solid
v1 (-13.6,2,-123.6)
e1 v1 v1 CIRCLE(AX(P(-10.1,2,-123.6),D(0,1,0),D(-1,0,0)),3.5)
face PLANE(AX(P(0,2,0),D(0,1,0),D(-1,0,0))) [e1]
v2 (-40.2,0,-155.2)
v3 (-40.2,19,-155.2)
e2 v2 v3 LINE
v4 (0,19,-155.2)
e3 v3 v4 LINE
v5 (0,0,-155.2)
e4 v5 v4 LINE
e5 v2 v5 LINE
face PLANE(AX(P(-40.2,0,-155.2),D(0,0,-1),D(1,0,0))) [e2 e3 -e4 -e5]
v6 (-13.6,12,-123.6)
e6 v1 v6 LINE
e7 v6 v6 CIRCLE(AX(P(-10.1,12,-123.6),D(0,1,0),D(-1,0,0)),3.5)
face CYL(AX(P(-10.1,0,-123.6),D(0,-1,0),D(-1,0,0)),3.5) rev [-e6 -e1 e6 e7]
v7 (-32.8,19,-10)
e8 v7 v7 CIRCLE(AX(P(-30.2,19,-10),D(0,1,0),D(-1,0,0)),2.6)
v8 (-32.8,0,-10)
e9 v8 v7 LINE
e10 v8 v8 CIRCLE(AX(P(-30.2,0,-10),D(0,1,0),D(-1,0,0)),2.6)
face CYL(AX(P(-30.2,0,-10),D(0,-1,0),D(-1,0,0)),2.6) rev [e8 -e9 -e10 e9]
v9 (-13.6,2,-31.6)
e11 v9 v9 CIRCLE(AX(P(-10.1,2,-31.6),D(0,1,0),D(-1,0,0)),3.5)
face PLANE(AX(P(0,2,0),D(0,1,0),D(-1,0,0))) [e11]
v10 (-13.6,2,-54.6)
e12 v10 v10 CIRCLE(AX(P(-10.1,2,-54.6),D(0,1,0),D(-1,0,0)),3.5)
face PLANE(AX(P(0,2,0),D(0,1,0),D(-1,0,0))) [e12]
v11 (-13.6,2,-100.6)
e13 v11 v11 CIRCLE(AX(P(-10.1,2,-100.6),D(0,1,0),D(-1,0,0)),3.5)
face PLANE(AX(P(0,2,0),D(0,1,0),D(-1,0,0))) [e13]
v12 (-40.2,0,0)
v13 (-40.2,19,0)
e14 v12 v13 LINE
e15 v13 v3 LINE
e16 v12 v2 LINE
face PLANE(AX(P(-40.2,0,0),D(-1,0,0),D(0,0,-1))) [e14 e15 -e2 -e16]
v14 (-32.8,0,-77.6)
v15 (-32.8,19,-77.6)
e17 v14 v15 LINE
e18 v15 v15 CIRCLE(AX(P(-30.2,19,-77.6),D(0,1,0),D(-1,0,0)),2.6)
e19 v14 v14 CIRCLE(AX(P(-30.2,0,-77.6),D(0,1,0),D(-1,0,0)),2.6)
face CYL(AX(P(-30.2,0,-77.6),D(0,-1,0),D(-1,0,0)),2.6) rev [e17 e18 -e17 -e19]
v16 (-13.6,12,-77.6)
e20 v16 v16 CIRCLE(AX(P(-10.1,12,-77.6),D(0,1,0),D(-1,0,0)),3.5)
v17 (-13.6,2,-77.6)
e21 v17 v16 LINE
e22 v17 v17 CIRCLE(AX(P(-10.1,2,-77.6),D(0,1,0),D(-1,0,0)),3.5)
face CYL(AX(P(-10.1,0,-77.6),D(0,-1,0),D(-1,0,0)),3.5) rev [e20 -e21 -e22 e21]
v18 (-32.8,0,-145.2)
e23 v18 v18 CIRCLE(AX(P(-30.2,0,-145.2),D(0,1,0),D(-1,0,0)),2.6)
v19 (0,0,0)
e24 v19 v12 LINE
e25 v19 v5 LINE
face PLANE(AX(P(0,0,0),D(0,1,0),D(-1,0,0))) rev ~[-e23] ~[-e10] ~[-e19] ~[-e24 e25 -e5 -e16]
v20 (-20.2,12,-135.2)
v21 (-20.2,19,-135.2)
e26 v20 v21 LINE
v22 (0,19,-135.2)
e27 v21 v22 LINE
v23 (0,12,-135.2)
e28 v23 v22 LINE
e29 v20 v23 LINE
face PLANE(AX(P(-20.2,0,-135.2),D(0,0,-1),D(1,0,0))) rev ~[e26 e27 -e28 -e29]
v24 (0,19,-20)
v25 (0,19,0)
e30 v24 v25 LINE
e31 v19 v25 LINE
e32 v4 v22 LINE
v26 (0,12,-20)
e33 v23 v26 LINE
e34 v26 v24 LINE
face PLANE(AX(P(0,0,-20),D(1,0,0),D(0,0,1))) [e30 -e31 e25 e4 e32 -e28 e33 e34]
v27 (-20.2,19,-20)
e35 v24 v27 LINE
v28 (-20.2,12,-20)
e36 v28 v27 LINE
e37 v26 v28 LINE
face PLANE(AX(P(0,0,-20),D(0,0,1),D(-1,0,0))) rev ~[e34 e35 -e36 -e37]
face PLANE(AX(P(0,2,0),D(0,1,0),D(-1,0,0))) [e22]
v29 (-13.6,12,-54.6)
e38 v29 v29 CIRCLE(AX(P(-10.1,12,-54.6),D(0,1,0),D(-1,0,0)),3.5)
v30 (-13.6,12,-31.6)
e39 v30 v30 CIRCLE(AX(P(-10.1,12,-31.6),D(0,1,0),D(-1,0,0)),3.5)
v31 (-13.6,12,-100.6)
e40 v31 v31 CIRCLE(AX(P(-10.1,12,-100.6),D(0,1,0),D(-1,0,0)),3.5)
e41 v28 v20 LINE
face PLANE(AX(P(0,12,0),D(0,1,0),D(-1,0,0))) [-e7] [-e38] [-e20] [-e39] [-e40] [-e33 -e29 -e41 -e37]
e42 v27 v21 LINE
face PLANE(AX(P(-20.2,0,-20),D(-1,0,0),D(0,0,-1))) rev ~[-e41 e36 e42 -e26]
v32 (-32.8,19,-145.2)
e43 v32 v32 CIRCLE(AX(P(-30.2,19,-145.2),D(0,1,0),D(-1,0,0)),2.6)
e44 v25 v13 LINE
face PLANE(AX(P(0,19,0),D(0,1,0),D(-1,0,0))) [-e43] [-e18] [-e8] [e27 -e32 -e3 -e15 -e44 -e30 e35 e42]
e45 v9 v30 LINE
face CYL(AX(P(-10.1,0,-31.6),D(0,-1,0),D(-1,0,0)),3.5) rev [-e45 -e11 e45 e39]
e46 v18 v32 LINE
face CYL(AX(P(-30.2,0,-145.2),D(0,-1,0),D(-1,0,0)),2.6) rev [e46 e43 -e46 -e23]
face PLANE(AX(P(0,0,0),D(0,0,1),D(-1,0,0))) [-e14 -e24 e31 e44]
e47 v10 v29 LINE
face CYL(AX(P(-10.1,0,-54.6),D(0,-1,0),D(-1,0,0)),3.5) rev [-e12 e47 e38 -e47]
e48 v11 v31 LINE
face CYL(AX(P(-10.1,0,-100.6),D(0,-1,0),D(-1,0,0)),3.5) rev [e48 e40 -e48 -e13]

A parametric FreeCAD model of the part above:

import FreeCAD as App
import Part
import Sketcher

V = App.Vector


def add_polygon(sketch, points):
    """Adds a closed chain of lines whose ends are joined by coincident constraints."""
    first, n = sketch.GeometryCount, len(points)
    for a, b in zip(points, points[1:] + points[:1]):
        sketch.addGeometry(Part.LineSegment(App.Vector(*a, 0), App.Vector(*b, 0)), False)
    for i in range(n):
        sketch.addConstraint(Sketcher.Constraint("Coincident", first + i, 2, first + (i + 1) % n, 1))

doc = App.newDocument("Part")
body = doc.addObject("PartDesign::Body", "Body")

# Sketch on XZ plane
sketch1 = body.newObject("Sketcher::SketchObject", "Sketch")
sketch1.AttachmentSupport = (doc.getObject("XZ_Plane"), [""])
sketch1.MapMode = "FlatFace"
add_polygon(sketch1, [(-20.2, -20), (0, -20), (0, -135.2), (-20.2, -135.2)])  # lines 0-3
sketch1.addGeometry(Part.Circle(V(-10.1, -123.6, 0), V(0, 0, 1), 3.5), False)  # 4
sketch1.addGeometry(Part.Circle(V(-10.1, -100.6, 0), V(0, 0, 1), 3.5), False)  # 5
sketch1.addGeometry(Part.Circle(V(-10.1, -77.6, 0), V(0, 0, 1), 3.5), False)  # 6
sketch1.addGeometry(Part.Circle(V(-10.1, -54.6, 0), V(0, 0, 1), 3.5), False)  # 7
sketch1.addGeometry(Part.Circle(V(-10.1, -31.6, 0), V(0, 0, 1), 3.5), False)  # 8
sketch1.addConstraint([
    Sketcher.Constraint("Horizontal", 0),
    Sketcher.Constraint("Vertical", 1),
    Sketcher.Constraint("Horizontal", 2),
    Sketcher.Constraint("Vertical", 3),
    Sketcher.Constraint("Equal", 4, 5),
    Sketcher.Constraint("Equal", 5, 6),
    Sketcher.Constraint("Equal", 6, 7),
    Sketcher.Constraint("Equal", 7, 8),
    Sketcher.Constraint("PointOnObject", 0, 2, -2),
    Sketcher.Constraint("Vertical", 4, 3, 5, 3),
    Sketcher.Constraint("Vertical", 5, 3, 6, 3),
    Sketcher.Constraint("Vertical", 6, 3, 7, 3),
    Sketcher.Constraint("Vertical", 7, 3, 8, 3),
    Sketcher.Constraint("Diameter", 4, 7.0),
    Sketcher.Constraint("DistanceX", 0, 1, 0, 2, 20.2),
    Sketcher.Constraint("DistanceY", 1, 2, 1, 1, 115.2),
    Sketcher.Constraint("DistanceY", 0, 2, -1, 1, 20.0),
    Sketcher.Constraint("DistanceY", 4, 3, 5, 3, 23.0),
    Sketcher.Constraint("DistanceY", 5, 3, 6, 3, 23.0),
    Sketcher.Constraint("DistanceY", 6, 3, 7, 3, 23.0),
    Sketcher.Constraint("DistanceY", 7, 3, 8, 3, 23.0),
    Sketcher.Constraint("DistanceX", 4, 3, -1, 1, 10.1),
    Sketcher.Constraint("DistanceY", 4, 3, -1, 1, 123.6),
])
pad1 = body.newObject("PartDesign::Pad", "Pad")
pad1.Profile = sketch1
pad1.Length = 12
pad1.Reversed = True

# Sketch on XZ plane
sketch2 = body.newObject("Sketcher::SketchObject", "Sketch001")
sketch2.AttachmentSupport = (doc.getObject("XZ_Plane"), [""])
sketch2.MapMode = "FlatFace"
sketch2.addGeometry([
    Part.Circle(V(-10.1, -77.6, 0), V(0, 0, 1), 3.5),  # 0
    Part.Circle(V(-10.1, -54.6, 0), V(0, 0, 1), 3.5),  # 1
    Part.Circle(V(-10.1, -31.6, 0), V(0, 0, 1), 3.5),  # 2
    Part.Circle(V(-10.1, -100.6, 0), V(0, 0, 1), 3.5),  # 3
    Part.Circle(V(-10.1, -123.6, 0), V(0, 0, 1), 3.5),  # 4
], False)
sketch2.addConstraint([
    Sketcher.Constraint("Equal", 0, 1),
    Sketcher.Constraint("Equal", 1, 2),
    Sketcher.Constraint("Equal", 2, 3),
    Sketcher.Constraint("Equal", 3, 4),
    Sketcher.Constraint("Vertical", 0, 3, 1, 3),
    Sketcher.Constraint("Vertical", 1, 3, 2, 3),
    Sketcher.Constraint("Vertical", 2, 3, 3, 3),
    Sketcher.Constraint("Vertical", 3, 3, 4, 3),
    Sketcher.Constraint("Diameter", 0, 7.0),
    Sketcher.Constraint("DistanceY", 0, 3, 1, 3, 23.0),
    Sketcher.Constraint("DistanceY", 1, 3, 2, 3, 23.0),
    Sketcher.Constraint("DistanceY", 3, 3, 0, 3, 23.0),
    Sketcher.Constraint("DistanceY", 4, 3, 3, 3, 23.0),
    Sketcher.Constraint("DistanceX", 0, 3, -1, 1, 10.1),
    Sketcher.Constraint("DistanceY", 0, 3, -1, 1, 77.6),
])
pad2 = body.newObject("PartDesign::Pad", "Pad001")
pad2.Profile = sketch2
pad2.Length = 2
pad2.Reversed = True

# Sketch on XZ plane
sketch3 = body.newObject("Sketcher::SketchObject", "Sketch002")
sketch3.AttachmentSupport = (doc.getObject("XZ_Plane"), [""])
sketch3.MapMode = "FlatFace"
add_polygon(sketch3, [(-40.2, 0), (0, 0), (0, -20), (-20.2, -20), (-20.2, -135.2), (0, -135.2), (0, -155.2), (-40.2, -155.2)])  # lines 0-7
sketch3.addGeometry(Part.Circle(V(-30.2, -145.2, 0), V(0, 0, 1), 2.6), False)  # 8
sketch3.addGeometry(Part.Circle(V(-30.2, -77.6, 0), V(0, 0, 1), 2.6), False)  # 9
sketch3.addGeometry(Part.Circle(V(-30.2, -10, 0), V(0, 0, 1), 2.6), False)  # 10
sketch3.addConstraint([
    Sketcher.Constraint("Horizontal", 0),
    Sketcher.Constraint("Vertical", 1),
    Sketcher.Constraint("Horizontal", 2),
    Sketcher.Constraint("Vertical", 3),
    Sketcher.Constraint("Horizontal", 4),
    Sketcher.Constraint("Vertical", 5),
    Sketcher.Constraint("Horizontal", 6),
    Sketcher.Constraint("Vertical", 7),
    Sketcher.Constraint("Coincident", 0, 2, -1, 1),
    Sketcher.Constraint("Equal", 8, 9),
    Sketcher.Constraint("Equal", 9, 10),
    Sketcher.Constraint("PointOnObject", 4, 2, -2),
    Sketcher.Constraint("Vertical", 8, 3, 9, 3),
    Sketcher.Constraint("Vertical", 9, 3, 10, 3),
    Sketcher.Constraint("Equal", 1, 5),
    Sketcher.Constraint("Diameter", 8, 5.2),
    Sketcher.Constraint("DistanceY", 1, 2, 1, 1, 20.0),
    Sketcher.Constraint("DistanceX", 2, 2, 2, 1, 20.2),
    Sketcher.Constraint("DistanceY", 3, 2, 3, 1, 115.2),
    Sketcher.Constraint("DistanceX", 6, 2, 3, 2, 20.0),
    Sketcher.Constraint("DistanceY", 10, 3, -1, 1, 10.0),
    Sketcher.Constraint("DistanceX", 10, 3, 2, 2, 10.0),
    Sketcher.Constraint("DistanceY", 8, 3, 3, 2, 10.0),
    Sketcher.Constraint("DistanceY", 9, 3, -1, 1, 77.6),
])
pad3 = body.newObject("PartDesign::Pad", "Pad002")
pad3.Profile = sketch3
pad3.Length = 19
pad3.Reversed = True

doc.recompute()
